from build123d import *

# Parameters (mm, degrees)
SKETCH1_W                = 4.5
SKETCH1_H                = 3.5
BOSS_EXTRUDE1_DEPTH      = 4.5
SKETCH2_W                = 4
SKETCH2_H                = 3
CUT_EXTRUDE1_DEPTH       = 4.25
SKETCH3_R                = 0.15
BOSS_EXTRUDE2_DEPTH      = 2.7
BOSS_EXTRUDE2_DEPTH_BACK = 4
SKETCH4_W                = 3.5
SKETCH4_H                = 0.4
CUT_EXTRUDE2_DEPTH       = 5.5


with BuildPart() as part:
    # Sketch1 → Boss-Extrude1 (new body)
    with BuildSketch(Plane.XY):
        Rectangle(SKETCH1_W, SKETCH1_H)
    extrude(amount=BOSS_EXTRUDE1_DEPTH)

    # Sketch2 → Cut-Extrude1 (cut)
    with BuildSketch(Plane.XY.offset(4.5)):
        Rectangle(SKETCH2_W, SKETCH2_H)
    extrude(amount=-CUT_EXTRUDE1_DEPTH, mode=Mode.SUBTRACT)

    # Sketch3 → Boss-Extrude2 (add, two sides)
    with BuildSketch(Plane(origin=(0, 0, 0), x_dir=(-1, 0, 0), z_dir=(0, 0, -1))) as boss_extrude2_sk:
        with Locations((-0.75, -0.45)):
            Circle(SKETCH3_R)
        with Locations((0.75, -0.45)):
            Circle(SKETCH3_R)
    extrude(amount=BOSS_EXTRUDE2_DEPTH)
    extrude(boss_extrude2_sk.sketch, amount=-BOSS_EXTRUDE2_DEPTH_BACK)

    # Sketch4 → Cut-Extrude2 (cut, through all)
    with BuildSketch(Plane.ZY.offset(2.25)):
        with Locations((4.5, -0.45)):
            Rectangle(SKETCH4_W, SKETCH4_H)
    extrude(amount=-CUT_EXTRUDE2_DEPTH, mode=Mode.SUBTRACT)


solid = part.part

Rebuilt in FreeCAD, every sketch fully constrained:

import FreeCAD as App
import Part
import Sketcher
from FreeCAD import Vector
Q = App.Units.Quantity


def add_polygon(sketch, points):
    """Adds a closed chain of lines whose ends are joined by coincident constraints."""
    first, n = sketch.GeometryCount, len(points)
    for a, b in zip(points, points[1:] + points[:1]):
        sketch.addGeometry(Part.LineSegment(App.Vector(*a, 0), App.Vector(*b, 0)), False)
    for i in range(n):
        sketch.addConstraint(Sketcher.Constraint("Coincident", first + i, 2, first + (i + 1) % n, 1))

doc = App.newDocument("Part")
body = doc.addObject("PartDesign::Body", "Body")

# Sketch on XY plane
sketch1 = body.newObject("Sketcher::SketchObject", "Sketch")
sketch1.AttachmentSupport = (doc.getObject("XY_Plane"), [""])
sketch1.MapMode = "FlatFace"
add_polygon(sketch1, [(-2.2, 1.8), (-2.2, -1.8), (2.2, -1.8), (2.2, 1.8)])  # lines 0-3
sketch1.addConstraint([
    Sketcher.Constraint("Vertical", 0),
    Sketcher.Constraint("Horizontal", 1),
    Sketcher.Constraint("Vertical", 2),
    Sketcher.Constraint("Horizontal", 3),
    Sketcher.Constraint("Symmetric", 0, 2, 2, 2, -1, 1),
    Sketcher.Constraint("DistanceX", 1, 1, 1, 2, Q("4.5 mm")),
    Sketcher.Constraint("DistanceY", 0, 2, 0, 1, Q("3.5 mm")),
])
pad1 = body.newObject("PartDesign::Pad", "Pad")
pad1.Profile = sketch1
pad1.Length = 4.5

# Sketch on XY plane
sketch2 = body.newObject("Sketcher::SketchObject", "Sketch001")
sketch2.AttachmentSupport = (doc.getObject("XY_Plane"), [""])
sketch2.MapMode = "FlatFace"
sketch2.AttachmentOffset = App.Placement(Vector(0, 0, 4.5), App.Rotation())
add_polygon(sketch2, [(-2, 1.5), (-2, -1.5), (2, -1.5), (2, 1.5)])  # lines 0-3
sketch2.addConstraint([
    Sketcher.Constraint("Vertical", 0),
    Sketcher.Constraint("Horizontal", 1),
    Sketcher.Constraint("Vertical", 2),
    Sketcher.Constraint("Horizontal", 3),
    Sketcher.Constraint("Symmetric", 0, 2, 2, 2, -1, 1),
    Sketcher.Constraint("DistanceX", 1, 1, 1, 2, Q("4 mm")),
    Sketcher.Constraint("DistanceY", 0, 2, 0, 1, Q("3 mm")),
])
pocket1 = body.newObject("PartDesign::Pocket", "Pocket")
pocket1.Profile = sketch2
pocket1.Length = 4.25

# Sketch on XY plane
sketch3 = body.newObject("Sketcher::SketchObject", "Sketch002")
sketch3.AttachmentSupport = (doc.getObject("XY_Plane"), [""])
sketch3.MapMode = "FlatFace"
sketch3.addGeometry([
    Part.Circle(Vector(0.75, -0.45, 0), Vector(0, 0, 1), 0.15),
    Part.Circle(Vector(-0.75, -0.45, 0), Vector(0, 0, 1), 0.15),
], False)
sketch3.addConstraint([
    Sketcher.Constraint("Equal", 0, 1),
    Sketcher.Constraint("Symmetric", 0, 3, 1, 3, -2),
    Sketcher.Constraint("Diameter", 0, Q("0.3 mm")),
    Sketcher.Constraint("DistanceX", 1, 3, 0, 3, Q("1.5 mm")),
    Sketcher.Constraint("DistanceY", 0, 3, -1, 1, Q("0.45 mm")),
])
pad2 = body.newObject("PartDesign::Pad", "Pad001")
pad2.Profile = sketch3
pad2.Type = "TwoLengths"
pad2.Length = 2.7
pad2.Length2 = 4
pad2.Reversed = True

# Sketch on YZ plane
sketch4 = body.newObject("Sketcher::SketchObject", "Sketch003")
sketch4.AttachmentSupport = (doc.getObject("YZ_Plane"), [""])
sketch4.MapMode = "FlatFace"
sketch4.AttachmentOffset = App.Placement(Vector(0, 0, -2.25), App.Rotation())
add_polygon(sketch4, [(-0.25, 2.75), (-0.65, 2.75), (-0.65, 6.25), (-0.25, 6.25)])  # lines 0-3
sketch4.addConstraint([
    Sketcher.Constraint("Horizontal", 0),
    Sketcher.Constraint("Vertical", 1),
    Sketcher.Constraint("Horizontal", 2),
    Sketcher.Constraint("Vertical", 3),
    Sketcher.Constraint("DistanceX", 0, 2, 0, 1, Q("0.4 mm")),
    Sketcher.Constraint("DistanceY", 1, 1, 1, 2, Q("3.5 mm")),
    Sketcher.Constraint("DistanceX", 0, 2, -1, 1, Q("0.65 mm")),
    Sketcher.Constraint("DistanceY", -1, 1, 0, 2, Q("2.75 mm")),
])
pocket2 = body.newObject("PartDesign::Pocket", "Pocket001")
pocket2.Profile = sketch4
pocket2.Type = "ThroughAll"
pocket2.Reversed = True

doc.recompute()
